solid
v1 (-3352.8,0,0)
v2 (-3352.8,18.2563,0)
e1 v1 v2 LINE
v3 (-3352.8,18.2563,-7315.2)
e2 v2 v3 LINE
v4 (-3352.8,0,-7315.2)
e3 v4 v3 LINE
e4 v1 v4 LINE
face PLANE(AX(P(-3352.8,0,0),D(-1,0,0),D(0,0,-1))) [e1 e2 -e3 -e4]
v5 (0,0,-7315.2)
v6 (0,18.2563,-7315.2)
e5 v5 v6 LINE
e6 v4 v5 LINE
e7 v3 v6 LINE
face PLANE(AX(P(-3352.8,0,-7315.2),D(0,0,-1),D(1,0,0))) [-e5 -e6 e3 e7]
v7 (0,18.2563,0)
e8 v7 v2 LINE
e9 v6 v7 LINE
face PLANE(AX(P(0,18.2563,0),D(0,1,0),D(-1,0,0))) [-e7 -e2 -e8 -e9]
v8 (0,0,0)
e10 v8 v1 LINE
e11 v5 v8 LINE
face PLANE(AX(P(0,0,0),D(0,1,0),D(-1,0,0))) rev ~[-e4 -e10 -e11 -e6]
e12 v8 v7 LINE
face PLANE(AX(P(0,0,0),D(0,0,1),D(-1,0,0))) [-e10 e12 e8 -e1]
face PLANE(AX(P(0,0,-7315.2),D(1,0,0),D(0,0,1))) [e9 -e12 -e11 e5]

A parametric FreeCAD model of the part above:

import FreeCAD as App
import Part
import Sketcher
from FreeCAD import Vector
Q = App.Units.Quantity

doc = App.newDocument("Part")
body = doc.addObject("PartDesign::Body", "Body")

sketch1 = body.newObject("Sketcher::SketchObject", "Sketch")
sketch1.AttachmentSupport = (doc.getObject("XZ_Plane"), [""])
sketch1.MapMode = "FlatFace"
sketch1.addGeometry([
    Part.LineSegment(Vector(-3353, 0, 0), Vector(0, 0, 0)),
    Part.LineSegment(Vector(0, 0, 0), Vector(0, -7315, 0)),
    Part.LineSegment(Vector(0, -7315, 0), Vector(-3353, -7315, 0)),
    Part.LineSegment(Vector(-3353, -7315, 0), Vector(-3353, 0, 0)),
], False)
sketch1.addConstraint([
    Sketcher.Constraint("Coincident", 0, 2, 1, 1),
    Sketcher.Constraint("Coincident", 1, 2, 2, 1),
    Sketcher.Constraint("Coincident", 2, 2, 3, 1),
    Sketcher.Constraint("Coincident", 3, 2, 0, 1),
    Sketcher.Constraint("Horizontal", 0),
    Sketcher.Constraint("Vertical", 1),
    Sketcher.Constraint("Horizontal", 2),
    Sketcher.Constraint("Vertical", 3),
    Sketcher.Constraint("Coincident", 0, 2, -1, 1),
    Sketcher.Constraint("DistanceX", 0, 1, 0, 2, Q("132 in")),
    Sketcher.Constraint("DistanceY", 1, 2, 1, 1, Q("288 in")),
])
pad1 = body.newObject("PartDesign::Pad", "Pad")
pad1.Profile = sketch1
pad1.Length = Q("0.718752 in")
pad1.Reversed = True

doc.recompute()
